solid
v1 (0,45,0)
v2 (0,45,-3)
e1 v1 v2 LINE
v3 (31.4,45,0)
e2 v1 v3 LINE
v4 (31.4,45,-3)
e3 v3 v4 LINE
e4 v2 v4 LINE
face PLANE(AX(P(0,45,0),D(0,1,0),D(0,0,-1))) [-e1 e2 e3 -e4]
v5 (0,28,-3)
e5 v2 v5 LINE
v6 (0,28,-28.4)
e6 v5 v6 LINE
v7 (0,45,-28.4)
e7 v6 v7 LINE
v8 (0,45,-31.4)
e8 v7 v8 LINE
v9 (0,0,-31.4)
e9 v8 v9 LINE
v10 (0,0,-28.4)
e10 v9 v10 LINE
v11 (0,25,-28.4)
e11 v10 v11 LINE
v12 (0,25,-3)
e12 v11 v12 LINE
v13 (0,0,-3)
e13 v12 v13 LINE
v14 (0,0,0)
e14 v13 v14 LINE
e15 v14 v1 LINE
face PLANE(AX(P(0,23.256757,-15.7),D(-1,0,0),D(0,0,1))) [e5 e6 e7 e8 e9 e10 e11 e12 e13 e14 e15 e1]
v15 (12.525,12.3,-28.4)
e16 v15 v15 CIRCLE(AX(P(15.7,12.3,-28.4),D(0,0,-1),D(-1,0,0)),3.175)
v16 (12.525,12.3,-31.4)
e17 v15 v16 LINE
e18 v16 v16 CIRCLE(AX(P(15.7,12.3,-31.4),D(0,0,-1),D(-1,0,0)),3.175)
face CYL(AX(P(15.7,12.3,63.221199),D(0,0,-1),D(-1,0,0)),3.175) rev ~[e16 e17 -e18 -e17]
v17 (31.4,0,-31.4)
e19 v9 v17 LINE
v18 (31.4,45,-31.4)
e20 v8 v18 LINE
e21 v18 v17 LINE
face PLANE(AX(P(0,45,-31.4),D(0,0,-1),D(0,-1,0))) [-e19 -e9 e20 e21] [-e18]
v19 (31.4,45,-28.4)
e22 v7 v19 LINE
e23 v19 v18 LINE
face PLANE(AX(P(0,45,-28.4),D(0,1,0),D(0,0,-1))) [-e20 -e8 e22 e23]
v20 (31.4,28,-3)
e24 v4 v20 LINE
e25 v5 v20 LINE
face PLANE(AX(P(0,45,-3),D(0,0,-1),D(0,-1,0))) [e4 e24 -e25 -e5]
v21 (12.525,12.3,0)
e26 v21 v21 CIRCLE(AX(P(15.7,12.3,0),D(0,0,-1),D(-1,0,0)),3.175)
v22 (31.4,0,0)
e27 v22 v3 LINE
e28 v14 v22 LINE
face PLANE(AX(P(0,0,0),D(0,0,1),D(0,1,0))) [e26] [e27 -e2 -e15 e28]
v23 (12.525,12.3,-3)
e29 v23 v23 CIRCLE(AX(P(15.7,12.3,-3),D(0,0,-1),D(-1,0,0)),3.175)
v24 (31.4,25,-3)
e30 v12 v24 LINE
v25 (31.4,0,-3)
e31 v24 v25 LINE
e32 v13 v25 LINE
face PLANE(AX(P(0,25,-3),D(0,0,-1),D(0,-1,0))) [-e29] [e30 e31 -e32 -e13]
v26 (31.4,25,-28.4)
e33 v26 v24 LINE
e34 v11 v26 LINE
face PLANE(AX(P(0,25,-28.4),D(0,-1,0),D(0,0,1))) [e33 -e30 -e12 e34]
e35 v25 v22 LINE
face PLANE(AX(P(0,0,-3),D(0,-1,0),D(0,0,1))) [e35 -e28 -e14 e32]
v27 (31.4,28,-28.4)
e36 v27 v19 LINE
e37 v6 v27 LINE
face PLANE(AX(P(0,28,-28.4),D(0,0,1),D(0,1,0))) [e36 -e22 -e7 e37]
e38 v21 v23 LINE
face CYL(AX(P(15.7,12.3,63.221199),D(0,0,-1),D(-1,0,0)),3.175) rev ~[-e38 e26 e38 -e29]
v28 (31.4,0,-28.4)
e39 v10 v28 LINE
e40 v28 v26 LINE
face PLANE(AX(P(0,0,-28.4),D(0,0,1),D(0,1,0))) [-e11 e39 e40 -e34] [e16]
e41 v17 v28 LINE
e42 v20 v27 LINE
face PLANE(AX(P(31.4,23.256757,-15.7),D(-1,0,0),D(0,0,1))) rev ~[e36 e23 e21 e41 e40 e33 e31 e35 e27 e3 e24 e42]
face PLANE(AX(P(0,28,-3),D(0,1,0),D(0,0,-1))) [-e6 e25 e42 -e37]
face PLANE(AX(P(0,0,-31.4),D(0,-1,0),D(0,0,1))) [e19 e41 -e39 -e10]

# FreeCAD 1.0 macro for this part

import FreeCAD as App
import Part
import Sketcher

V = App.Vector
Q = App.Units.Quantity

doc = App.newDocument("Part")
body = doc.addObject("PartDesign::Body", "Body")

# Sketch on YZ plane
sketch1 = body.newObject("Sketcher::SketchObject", "Sketch")
sketch1.AttachmentSupport = (doc.getObject("YZ_Plane"), [""])
sketch1.MapMode = "FlatFace"
sketch1.addGeometry(Part.LineSegment(V(45, 0, 0), V(0, 0, 0)), False)
sketch1.addGeometry(Part.LineSegment(V(0, 0, 0), V(0, -3, 0)), False)
sketch1.addGeometry(Part.LineSegment(V(0, -3, 0), V(25, -3, 0)), False)
sketch1.addGeometry(Part.LineSegment(V(25, -3, 0), V(25, -28.4, 0)), False)
sketch1.addGeometry(Part.LineSegment(V(25, -28.4, 0), V(0, -28.4, 0)), False)
sketch1.addGeometry(Part.LineSegment(V(0, -28.4, 0), V(0, -31.4, 0)), False)
sketch1.addGeometry(Part.LineSegment(V(0, -31.4, 0), V(45, -31.4, 0)), False)
sketch1.addGeometry(Part.LineSegment(V(45, -31.4, 0), V(45, -28.4, 0)), False)
sketch1.addGeometry(Part.LineSegment(V(45, -28.4, 0), V(28, -28.4, 0)), False)
sketch1.addGeometry(Part.LineSegment(V(28, -28.4, 0), V(28, -3, 0)), False)
sketch1.addGeometry(Part.LineSegment(V(28, -3, 0), V(45, -3, 0)), False)
sketch1.addGeometry(Part.LineSegment(V(45, -3, 0), V(45, 0, 0)), False)
sketch1.addConstraint(Sketcher.Constraint("Coincident", 0, 2, 1, 1))
sketch1.addConstraint(Sketcher.Constraint("Coincident", 1, 2, 2, 1))
sketch1.addConstraint(Sketcher.Constraint("Coincident", 2, 2, 3, 1))
sketch1.addConstraint(Sketcher.Constraint("Coincident", 3, 2, 4, 1))
sketch1.addConstraint(Sketcher.Constraint("Coincident", 4, 2, 5, 1))
sketch1.addConstraint(Sketcher.Constraint("Coincident", 5, 2, 6, 1))
sketch1.addConstraint(Sketcher.Constraint("Coincident", 6, 2, 7, 1))
sketch1.addConstraint(Sketcher.Constraint("Coincident", 7, 2, 8, 1))
sketch1.addConstraint(Sketcher.Constraint("Coincident", 8, 2, 9, 1))
sketch1.addConstraint(Sketcher.Constraint("Coincident", 9, 2, 10, 1))
sketch1.addConstraint(Sketcher.Constraint("Coincident", 10, 2, 11, 1))
sketch1.addConstraint(Sketcher.Constraint("Coincident", 11, 2, 0, 1))
sketch1.addConstraint(Sketcher.Constraint("Horizontal", 0))
sketch1.addConstraint(Sketcher.Constraint("Vertical", 1))
sketch1.addConstraint(Sketcher.Constraint("Horizontal", 2))
sketch1.addConstraint(Sketcher.Constraint("Vertical", 3))
sketch1.addConstraint(Sketcher.Constraint("Horizontal", 4))
sketch1.addConstraint(Sketcher.Constraint("Vertical", 5))
sketch1.addConstraint(Sketcher.Constraint("Horizontal", 6))
sketch1.addConstraint(Sketcher.Constraint("Vertical", 7))
sketch1.addConstraint(Sketcher.Constraint("Horizontal", 8))
sketch1.addConstraint(Sketcher.Constraint("Vertical", 9))
sketch1.addConstraint(Sketcher.Constraint("Horizontal", 10))
sketch1.addConstraint(Sketcher.Constraint("Vertical", 11))
sketch1.addConstraint(Sketcher.Constraint("Coincident", 0, 2, -1, 1))
sketch1.addConstraint(Sketcher.Constraint("PointOnObject", 4, 2, -2))
sketch1.addConstraint(Sketcher.Constraint("Horizontal", 4, 2, 7, 2))
sketch1.addConstraint(Sketcher.Constraint("Horizontal", 2, 2, 9, 2))
sketch1.addConstraint(Sketcher.Constraint("Vertical", 7, 2, 10, 2))
sketch1.addConstraint(Sketcher.Constraint("Equal", 1, 5))
sketch1.addConstraint(Sketcher.Constraint("DistanceX", 0, 2, 0, 1, Q("45 mm")))
sketch1.addConstraint(Sketcher.Constraint("DistanceX", 2, 1, 2, 2, Q("25 mm")))
sketch1.addConstraint(Sketcher.Constraint("DistanceX", 8, 2, 8, 1, Q("17 mm")))
sketch1.addConstraint(Sketcher.Constraint("DistanceY", 1, 2, 1, 1, Q("3 mm")))
sketch1.addConstraint(Sketcher.Constraint("DistanceY", 3, 2, 3, 1, Q("25.4 mm")))
pad1 = body.newObject("PartDesign::Pad", "Pad")
pad1.Profile = sketch1
pad1.Length = 31.4

# Sketch on XY plane
sketch2 = body.newObject("Sketcher::SketchObject", "Sketch001")
sketch2.AttachmentSupport = (doc.getObject("XY_Plane"), [""])
sketch2.MapMode = "FlatFace"
sketch2.addGeometry(Part.Circle(V(15.7, 12.3, 0), V(0, 0, 1), 3.2), False)
sketch2.addConstraint(Sketcher.Constraint("Diameter", 0, Q("6.35 mm")))
sketch2.addConstraint(Sketcher.Constraint("DistanceX", -1, 1, 0, 3, Q("15.7 mm")))
sketch2.addConstraint(Sketcher.Constraint("DistanceY", -1, 1, 0, 3, Q("12.3 mm")))
doc.recompute()
hole = body.newObject("PartDesign::Hole", "Hole")
hole.Profile = sketch2
hole.ThreadType = "None"
hole.Diameter = 6.35
hole.DepthType = "ThroughAll"

doc.recompute()
